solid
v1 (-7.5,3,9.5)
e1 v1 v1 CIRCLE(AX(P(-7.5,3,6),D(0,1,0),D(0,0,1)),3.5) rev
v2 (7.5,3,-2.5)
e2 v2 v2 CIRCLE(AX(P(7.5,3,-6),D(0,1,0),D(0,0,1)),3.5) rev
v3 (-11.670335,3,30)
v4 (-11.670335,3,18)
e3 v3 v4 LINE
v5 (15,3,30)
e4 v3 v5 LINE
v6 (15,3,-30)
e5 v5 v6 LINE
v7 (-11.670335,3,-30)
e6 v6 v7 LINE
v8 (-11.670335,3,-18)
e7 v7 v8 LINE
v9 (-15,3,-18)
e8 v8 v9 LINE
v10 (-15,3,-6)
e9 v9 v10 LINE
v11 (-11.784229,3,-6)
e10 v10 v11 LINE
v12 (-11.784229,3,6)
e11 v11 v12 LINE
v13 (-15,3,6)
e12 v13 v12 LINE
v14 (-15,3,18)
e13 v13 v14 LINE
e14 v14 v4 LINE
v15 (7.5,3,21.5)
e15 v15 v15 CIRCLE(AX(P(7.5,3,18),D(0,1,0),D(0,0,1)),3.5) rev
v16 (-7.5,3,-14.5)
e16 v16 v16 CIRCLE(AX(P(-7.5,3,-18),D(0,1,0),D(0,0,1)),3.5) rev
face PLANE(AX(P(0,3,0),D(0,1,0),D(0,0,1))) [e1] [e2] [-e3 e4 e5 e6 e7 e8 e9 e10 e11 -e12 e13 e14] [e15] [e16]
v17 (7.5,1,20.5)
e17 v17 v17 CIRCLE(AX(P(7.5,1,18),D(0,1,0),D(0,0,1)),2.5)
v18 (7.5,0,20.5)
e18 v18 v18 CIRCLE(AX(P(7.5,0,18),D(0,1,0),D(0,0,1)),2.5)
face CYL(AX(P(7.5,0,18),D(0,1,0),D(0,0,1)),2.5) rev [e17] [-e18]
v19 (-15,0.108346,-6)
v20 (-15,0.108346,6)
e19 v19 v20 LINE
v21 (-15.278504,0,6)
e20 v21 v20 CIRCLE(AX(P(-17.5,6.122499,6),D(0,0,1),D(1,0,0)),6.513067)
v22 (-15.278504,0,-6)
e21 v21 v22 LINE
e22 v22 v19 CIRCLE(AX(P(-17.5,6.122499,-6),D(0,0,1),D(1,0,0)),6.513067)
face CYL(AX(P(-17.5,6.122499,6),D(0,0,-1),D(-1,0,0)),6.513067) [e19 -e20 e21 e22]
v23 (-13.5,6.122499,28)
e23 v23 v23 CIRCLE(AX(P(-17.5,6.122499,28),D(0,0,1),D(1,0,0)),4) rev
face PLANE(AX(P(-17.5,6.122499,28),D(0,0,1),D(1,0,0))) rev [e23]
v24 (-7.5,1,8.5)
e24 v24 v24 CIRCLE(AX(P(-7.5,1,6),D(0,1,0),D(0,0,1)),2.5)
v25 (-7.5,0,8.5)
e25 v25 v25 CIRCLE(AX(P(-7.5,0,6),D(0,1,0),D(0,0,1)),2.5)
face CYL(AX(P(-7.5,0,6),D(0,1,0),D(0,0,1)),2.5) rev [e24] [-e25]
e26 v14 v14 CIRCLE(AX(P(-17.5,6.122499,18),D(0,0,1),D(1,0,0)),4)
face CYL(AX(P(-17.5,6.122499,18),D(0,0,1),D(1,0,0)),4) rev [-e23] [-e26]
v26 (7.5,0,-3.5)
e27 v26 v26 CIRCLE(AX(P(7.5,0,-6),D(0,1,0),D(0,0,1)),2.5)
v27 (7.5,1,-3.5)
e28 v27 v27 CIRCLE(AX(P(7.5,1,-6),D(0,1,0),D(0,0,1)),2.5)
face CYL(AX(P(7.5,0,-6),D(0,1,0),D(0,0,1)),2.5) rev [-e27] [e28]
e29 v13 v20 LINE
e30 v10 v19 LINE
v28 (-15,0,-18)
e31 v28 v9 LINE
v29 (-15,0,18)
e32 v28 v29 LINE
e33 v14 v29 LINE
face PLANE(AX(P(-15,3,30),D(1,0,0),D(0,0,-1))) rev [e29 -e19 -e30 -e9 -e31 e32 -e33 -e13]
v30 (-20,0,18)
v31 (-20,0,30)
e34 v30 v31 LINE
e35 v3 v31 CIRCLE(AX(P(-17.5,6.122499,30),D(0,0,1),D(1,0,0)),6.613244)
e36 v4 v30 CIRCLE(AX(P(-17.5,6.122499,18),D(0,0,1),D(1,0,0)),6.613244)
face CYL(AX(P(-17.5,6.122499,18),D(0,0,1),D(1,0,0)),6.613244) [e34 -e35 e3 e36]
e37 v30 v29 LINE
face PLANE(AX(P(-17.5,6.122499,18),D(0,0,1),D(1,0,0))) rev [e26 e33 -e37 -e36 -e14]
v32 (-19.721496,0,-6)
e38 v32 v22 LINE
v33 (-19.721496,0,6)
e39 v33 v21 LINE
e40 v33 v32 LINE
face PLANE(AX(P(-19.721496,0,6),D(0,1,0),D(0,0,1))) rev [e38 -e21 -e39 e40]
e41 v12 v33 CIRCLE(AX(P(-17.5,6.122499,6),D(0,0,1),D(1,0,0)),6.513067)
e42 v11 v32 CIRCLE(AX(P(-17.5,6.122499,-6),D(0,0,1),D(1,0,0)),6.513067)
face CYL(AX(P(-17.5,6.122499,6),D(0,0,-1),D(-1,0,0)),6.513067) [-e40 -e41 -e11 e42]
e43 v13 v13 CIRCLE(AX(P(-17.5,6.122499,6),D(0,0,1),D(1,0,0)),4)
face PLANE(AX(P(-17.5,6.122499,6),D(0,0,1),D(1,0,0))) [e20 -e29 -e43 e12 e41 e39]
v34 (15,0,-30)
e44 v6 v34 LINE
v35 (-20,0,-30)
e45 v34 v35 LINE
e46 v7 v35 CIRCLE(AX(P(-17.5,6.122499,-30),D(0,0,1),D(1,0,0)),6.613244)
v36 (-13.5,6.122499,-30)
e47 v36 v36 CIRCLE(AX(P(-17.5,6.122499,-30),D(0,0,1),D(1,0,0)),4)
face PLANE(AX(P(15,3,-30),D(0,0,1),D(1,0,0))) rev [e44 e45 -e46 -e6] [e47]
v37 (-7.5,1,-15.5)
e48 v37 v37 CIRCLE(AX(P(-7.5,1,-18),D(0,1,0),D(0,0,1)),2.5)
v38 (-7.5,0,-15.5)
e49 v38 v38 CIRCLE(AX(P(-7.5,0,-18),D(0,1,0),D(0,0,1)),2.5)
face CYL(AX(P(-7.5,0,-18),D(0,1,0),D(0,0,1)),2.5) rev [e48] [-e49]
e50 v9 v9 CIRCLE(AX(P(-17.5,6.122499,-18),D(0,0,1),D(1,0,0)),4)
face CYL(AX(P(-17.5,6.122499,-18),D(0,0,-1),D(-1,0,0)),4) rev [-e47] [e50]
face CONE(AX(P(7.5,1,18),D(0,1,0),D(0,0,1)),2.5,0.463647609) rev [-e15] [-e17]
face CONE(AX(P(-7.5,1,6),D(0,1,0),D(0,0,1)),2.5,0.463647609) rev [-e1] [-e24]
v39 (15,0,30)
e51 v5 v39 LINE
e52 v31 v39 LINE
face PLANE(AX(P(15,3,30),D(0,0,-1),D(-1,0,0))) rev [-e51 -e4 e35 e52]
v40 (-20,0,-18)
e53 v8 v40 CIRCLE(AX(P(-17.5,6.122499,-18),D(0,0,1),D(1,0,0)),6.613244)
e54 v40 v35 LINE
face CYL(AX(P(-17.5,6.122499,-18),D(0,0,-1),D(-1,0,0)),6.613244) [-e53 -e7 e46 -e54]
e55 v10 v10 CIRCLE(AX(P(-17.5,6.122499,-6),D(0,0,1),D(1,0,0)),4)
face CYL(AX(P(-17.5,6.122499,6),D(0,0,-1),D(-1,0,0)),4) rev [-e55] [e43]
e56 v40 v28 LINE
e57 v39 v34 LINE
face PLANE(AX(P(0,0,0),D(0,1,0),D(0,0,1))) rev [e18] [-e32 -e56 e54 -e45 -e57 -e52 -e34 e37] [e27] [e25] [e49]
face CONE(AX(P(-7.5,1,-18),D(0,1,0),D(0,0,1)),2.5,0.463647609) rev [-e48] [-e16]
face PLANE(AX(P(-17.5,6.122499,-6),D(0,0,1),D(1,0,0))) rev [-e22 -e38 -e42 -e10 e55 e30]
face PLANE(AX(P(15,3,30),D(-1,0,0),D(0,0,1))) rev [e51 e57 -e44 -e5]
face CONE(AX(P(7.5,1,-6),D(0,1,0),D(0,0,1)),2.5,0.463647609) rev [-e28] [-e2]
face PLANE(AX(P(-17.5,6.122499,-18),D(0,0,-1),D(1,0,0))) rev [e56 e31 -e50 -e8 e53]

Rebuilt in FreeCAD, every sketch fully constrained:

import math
import FreeCAD as App
import Part
import Sketcher


def edges_at(feature, points):
    """Names of the edges that pass closest to the given points."""
    edges = feature.Shape.Edges
    near = lambda p: min(range(len(edges)), key=lambda i: edges[i].distToShape(Part.Vertex(*p))[0])
    return sorted({f"Edge{near(p) + 1}" for p in points})


def add_polygon(sketch, points):
    """Adds a closed chain of lines whose ends are joined by coincident constraints."""
    first, n = sketch.GeometryCount, len(points)
    for a, b in zip(points, points[1:] + points[:1]):
        sketch.addGeometry(Part.LineSegment(App.Vector(*a, 0), App.Vector(*b, 0)), False)
    for i in range(n):
        sketch.addConstraint(Sketcher.Constraint("Coincident", first + i, 2, first + (i + 1) % n, 1))

doc = App.newDocument("Part")
body = doc.addObject("PartDesign::Body", "Body")

# Sketch on XZ plane
sketch1 = body.newObject("Sketcher::SketchObject", "Sketch")
sketch1.AttachmentSupport = (doc.getObject("XZ_Plane"), [""])
sketch1.MapMode = "FlatFace"
add_polygon(sketch1, [(-15, -30), (-15, 30), (15, 30), (15, -30)])  # lines 0-3
sketch1.addConstraint([
    Sketcher.Constraint("Vertical", 0),
    Sketcher.Constraint("Horizontal", 1),
    Sketcher.Constraint("Vertical", 2),
    Sketcher.Constraint("Horizontal", 3),
    Sketcher.Constraint("Symmetric", 0, 2, 2, 2, -1, 1),
    Sketcher.Constraint("DistanceX", 1, 1, 1, 2, 30.0),
    Sketcher.Constraint("DistanceY", 0, 1, 0, 2, 60.0),
])
pad1 = body.newObject("PartDesign::Pad", "Pad")
pad1.Profile = sketch1
pad1.Length = 3
pad1.Reversed = True

# Sketch on XY plane
sketch2 = body.newObject("Sketcher::SketchObject", "Sketch001")
sketch2.AttachmentSupport = (doc.getObject("XY_Plane"), [""])
sketch2.MapMode = "FlatFace"
sketch2.AttachmentOffset = App.Placement(App.Vector(0, 0, 30), App.Rotation())
sketch2.addGeometry([
    Part.LineSegment(App.Vector(-20, 0, 0), App.Vector(-15, 0, 0)),
    Part.ArcOfCircle(Part.Circle(App.Vector(-17.5, 6.1, 0), App.Vector(0, 0, 1), 6.6), math.radians(-68), math.radians(248)),
    Part.Circle(App.Vector(-17.5, 6.1, 0), App.Vector(0, 0, 1), 4),
], False)
sketch2.addConstraint([
    Sketcher.Constraint("Coincident", 0, 1, 1, 2),
    Sketcher.Constraint("Coincident", 1, 1, 0, 2),
    Sketcher.Constraint("Horizontal", 0),
    Sketcher.Constraint("Coincident", 2, 3, 1, 3),
    Sketcher.Constraint("PointOnObject", 0, 1, -1),
    Sketcher.Constraint("Diameter", 2, 8.0),
    Sketcher.Constraint("DistanceX", 0, 1, 0, 2, 5.0),
    Sketcher.Constraint("DistanceX", 0, 1, -1, 1, 20.0),
    Sketcher.Constraint("Radius", 1, 6.613244),
])
pad2 = body.newObject("PartDesign::Pad", "Pad001")
pad2.Profile = sketch2
pad2.Length = 12
pad2.Reversed = True
doc.recompute()

mirrored = body.newObject("PartDesign::Mirrored", "Mirrored")
mirrored.Originals = [pad2]
mirrored.MirrorPlane = (doc.getObject("XY_Plane"), [""])
body.Tip = mirrored

# Sketch on XY plane
sketch3 = body.newObject("Sketcher::SketchObject", "Sketch002")
sketch3.AttachmentSupport = (doc.getObject("XY_Plane"), [""])
sketch3.MapMode = "FlatFace"
sketch3.addGeometry([
    Part.LineSegment(App.Vector(-19.7, 0, 0), App.Vector(-15.3, 0, 0)),
    Part.ArcOfCircle(Part.Circle(App.Vector(-17.5, 6.1, 0), App.Vector(0, 0, 1), 6.5), math.radians(-70), math.radians(250)),
    Part.Circle(App.Vector(-17.5, 6.1, 0), App.Vector(0, 0, 1), 4),
], False)
sketch3.addConstraint([
    Sketcher.Constraint("Coincident", 0, 1, 1, 2),
    Sketcher.Constraint("Coincident", 1, 1, 0, 2),
    Sketcher.Constraint("Horizontal", 0),
    Sketcher.Constraint("Coincident", 2, 3, 1, 3),
    Sketcher.Constraint("PointOnObject", 0, 1, -1),
    Sketcher.Constraint("Diameter", 2, 8.0),
    Sketcher.Constraint("DistanceX", 1, 3, -1, 1, 17.5),
    Sketcher.Constraint("Radius", 1, 6.513067),
    Sketcher.Constraint("DistanceX", 0, 1, 0, 2, 4.442991),
])
pad3 = body.newObject("PartDesign::Pad", "Pad002")
pad3.Profile = sketch3
pad3.Length = 12
pad3.Midplane = True

# Sketch on XZ plane
sketch4 = body.newObject("Sketcher::SketchObject", "Sketch003")
sketch4.AttachmentSupport = (doc.getObject("XZ_Plane"), [""])
sketch4.MapMode = "FlatFace"
sketch4.AttachmentOffset = App.Placement(App.Vector(0, 0, -3), App.Rotation())
sketch4.addGeometry([
    Part.Circle(App.Vector(7.5, 18, 0), App.Vector(0, 0, 1), 2.5),
    Part.Circle(App.Vector(-7.5, 6, 0), App.Vector(0, 0, 1), 2.5),
    Part.Circle(App.Vector(7.5, -6, 0), App.Vector(0, 0, 1), 2.5),
    Part.Circle(App.Vector(-7.5, -18, 0), App.Vector(0, 0, 1), 2.5),
], False)
sketch4.addConstraint([
    Sketcher.Constraint("Equal", 0, 1),
    Sketcher.Constraint("Equal", 1, 2),
    Sketcher.Constraint("Equal", 2, 3),
    Sketcher.Constraint("Symmetric", 1, 3, 2, 3, -1, 1),
    Sketcher.Constraint("Symmetric", 0, 3, 3, 3, -1, 1),
    Sketcher.Constraint("Vertical", 0, 3, 2, 3),
    Sketcher.Constraint("Diameter", 0, 5.0),
    Sketcher.Constraint("DistanceY", -1, 1, 0, 3, 18.0),
    Sketcher.Constraint("DistanceY", -1, 1, 1, 3, 6.0),
    Sketcher.Constraint("DistanceX", 1, 3, 0, 3, 15.0),
])
pocket1 = body.newObject("PartDesign::Pocket", "Pocket")
pocket1.Profile = sketch4
pocket1.Type = "ThroughAll"
pocket1.Reversed = True
doc.recompute()

chamfer = body.newObject("PartDesign::Chamfer", "Chamfer")
chamfer.Base = (pocket1, edges_at(pocket1, [
    (-10, 3, -18),
    (-10, 3, 6),
    (5, 3, 18),
    (5, 3, -6),
]))
chamfer.ChamferType = "Two distances"
chamfer.Size = 1
chamfer.Size2 = 2

# Sketch on XY plane
sketch5 = body.newObject("Sketcher::SketchObject", "Sketch004")
sketch5.AttachmentSupport = (doc.getObject("XY_Plane"), [""])
sketch5.MapMode = "FlatFace"
sketch5.AttachmentOffset = App.Placement(App.Vector(0, 0, 30), App.Rotation())
sketch5.addGeometry(Part.Circle(App.Vector(-17.5, 6.1, 0), App.Vector(0, 0, 1), 4), False)
sketch5.addConstraint([
    Sketcher.Constraint("Diameter", 0, 8.0),
    Sketcher.Constraint("DistanceX", 0, 3, -1, 1, 17.5),
    Sketcher.Constraint("DistanceY", -1, 1, 0, 3, 6.122499),
])
pad4 = body.newObject("PartDesign::Pad", "Pad003")
pad4.Profile = sketch5
pad4.Length = 2
pad4.Reversed = True

doc.recompute()
